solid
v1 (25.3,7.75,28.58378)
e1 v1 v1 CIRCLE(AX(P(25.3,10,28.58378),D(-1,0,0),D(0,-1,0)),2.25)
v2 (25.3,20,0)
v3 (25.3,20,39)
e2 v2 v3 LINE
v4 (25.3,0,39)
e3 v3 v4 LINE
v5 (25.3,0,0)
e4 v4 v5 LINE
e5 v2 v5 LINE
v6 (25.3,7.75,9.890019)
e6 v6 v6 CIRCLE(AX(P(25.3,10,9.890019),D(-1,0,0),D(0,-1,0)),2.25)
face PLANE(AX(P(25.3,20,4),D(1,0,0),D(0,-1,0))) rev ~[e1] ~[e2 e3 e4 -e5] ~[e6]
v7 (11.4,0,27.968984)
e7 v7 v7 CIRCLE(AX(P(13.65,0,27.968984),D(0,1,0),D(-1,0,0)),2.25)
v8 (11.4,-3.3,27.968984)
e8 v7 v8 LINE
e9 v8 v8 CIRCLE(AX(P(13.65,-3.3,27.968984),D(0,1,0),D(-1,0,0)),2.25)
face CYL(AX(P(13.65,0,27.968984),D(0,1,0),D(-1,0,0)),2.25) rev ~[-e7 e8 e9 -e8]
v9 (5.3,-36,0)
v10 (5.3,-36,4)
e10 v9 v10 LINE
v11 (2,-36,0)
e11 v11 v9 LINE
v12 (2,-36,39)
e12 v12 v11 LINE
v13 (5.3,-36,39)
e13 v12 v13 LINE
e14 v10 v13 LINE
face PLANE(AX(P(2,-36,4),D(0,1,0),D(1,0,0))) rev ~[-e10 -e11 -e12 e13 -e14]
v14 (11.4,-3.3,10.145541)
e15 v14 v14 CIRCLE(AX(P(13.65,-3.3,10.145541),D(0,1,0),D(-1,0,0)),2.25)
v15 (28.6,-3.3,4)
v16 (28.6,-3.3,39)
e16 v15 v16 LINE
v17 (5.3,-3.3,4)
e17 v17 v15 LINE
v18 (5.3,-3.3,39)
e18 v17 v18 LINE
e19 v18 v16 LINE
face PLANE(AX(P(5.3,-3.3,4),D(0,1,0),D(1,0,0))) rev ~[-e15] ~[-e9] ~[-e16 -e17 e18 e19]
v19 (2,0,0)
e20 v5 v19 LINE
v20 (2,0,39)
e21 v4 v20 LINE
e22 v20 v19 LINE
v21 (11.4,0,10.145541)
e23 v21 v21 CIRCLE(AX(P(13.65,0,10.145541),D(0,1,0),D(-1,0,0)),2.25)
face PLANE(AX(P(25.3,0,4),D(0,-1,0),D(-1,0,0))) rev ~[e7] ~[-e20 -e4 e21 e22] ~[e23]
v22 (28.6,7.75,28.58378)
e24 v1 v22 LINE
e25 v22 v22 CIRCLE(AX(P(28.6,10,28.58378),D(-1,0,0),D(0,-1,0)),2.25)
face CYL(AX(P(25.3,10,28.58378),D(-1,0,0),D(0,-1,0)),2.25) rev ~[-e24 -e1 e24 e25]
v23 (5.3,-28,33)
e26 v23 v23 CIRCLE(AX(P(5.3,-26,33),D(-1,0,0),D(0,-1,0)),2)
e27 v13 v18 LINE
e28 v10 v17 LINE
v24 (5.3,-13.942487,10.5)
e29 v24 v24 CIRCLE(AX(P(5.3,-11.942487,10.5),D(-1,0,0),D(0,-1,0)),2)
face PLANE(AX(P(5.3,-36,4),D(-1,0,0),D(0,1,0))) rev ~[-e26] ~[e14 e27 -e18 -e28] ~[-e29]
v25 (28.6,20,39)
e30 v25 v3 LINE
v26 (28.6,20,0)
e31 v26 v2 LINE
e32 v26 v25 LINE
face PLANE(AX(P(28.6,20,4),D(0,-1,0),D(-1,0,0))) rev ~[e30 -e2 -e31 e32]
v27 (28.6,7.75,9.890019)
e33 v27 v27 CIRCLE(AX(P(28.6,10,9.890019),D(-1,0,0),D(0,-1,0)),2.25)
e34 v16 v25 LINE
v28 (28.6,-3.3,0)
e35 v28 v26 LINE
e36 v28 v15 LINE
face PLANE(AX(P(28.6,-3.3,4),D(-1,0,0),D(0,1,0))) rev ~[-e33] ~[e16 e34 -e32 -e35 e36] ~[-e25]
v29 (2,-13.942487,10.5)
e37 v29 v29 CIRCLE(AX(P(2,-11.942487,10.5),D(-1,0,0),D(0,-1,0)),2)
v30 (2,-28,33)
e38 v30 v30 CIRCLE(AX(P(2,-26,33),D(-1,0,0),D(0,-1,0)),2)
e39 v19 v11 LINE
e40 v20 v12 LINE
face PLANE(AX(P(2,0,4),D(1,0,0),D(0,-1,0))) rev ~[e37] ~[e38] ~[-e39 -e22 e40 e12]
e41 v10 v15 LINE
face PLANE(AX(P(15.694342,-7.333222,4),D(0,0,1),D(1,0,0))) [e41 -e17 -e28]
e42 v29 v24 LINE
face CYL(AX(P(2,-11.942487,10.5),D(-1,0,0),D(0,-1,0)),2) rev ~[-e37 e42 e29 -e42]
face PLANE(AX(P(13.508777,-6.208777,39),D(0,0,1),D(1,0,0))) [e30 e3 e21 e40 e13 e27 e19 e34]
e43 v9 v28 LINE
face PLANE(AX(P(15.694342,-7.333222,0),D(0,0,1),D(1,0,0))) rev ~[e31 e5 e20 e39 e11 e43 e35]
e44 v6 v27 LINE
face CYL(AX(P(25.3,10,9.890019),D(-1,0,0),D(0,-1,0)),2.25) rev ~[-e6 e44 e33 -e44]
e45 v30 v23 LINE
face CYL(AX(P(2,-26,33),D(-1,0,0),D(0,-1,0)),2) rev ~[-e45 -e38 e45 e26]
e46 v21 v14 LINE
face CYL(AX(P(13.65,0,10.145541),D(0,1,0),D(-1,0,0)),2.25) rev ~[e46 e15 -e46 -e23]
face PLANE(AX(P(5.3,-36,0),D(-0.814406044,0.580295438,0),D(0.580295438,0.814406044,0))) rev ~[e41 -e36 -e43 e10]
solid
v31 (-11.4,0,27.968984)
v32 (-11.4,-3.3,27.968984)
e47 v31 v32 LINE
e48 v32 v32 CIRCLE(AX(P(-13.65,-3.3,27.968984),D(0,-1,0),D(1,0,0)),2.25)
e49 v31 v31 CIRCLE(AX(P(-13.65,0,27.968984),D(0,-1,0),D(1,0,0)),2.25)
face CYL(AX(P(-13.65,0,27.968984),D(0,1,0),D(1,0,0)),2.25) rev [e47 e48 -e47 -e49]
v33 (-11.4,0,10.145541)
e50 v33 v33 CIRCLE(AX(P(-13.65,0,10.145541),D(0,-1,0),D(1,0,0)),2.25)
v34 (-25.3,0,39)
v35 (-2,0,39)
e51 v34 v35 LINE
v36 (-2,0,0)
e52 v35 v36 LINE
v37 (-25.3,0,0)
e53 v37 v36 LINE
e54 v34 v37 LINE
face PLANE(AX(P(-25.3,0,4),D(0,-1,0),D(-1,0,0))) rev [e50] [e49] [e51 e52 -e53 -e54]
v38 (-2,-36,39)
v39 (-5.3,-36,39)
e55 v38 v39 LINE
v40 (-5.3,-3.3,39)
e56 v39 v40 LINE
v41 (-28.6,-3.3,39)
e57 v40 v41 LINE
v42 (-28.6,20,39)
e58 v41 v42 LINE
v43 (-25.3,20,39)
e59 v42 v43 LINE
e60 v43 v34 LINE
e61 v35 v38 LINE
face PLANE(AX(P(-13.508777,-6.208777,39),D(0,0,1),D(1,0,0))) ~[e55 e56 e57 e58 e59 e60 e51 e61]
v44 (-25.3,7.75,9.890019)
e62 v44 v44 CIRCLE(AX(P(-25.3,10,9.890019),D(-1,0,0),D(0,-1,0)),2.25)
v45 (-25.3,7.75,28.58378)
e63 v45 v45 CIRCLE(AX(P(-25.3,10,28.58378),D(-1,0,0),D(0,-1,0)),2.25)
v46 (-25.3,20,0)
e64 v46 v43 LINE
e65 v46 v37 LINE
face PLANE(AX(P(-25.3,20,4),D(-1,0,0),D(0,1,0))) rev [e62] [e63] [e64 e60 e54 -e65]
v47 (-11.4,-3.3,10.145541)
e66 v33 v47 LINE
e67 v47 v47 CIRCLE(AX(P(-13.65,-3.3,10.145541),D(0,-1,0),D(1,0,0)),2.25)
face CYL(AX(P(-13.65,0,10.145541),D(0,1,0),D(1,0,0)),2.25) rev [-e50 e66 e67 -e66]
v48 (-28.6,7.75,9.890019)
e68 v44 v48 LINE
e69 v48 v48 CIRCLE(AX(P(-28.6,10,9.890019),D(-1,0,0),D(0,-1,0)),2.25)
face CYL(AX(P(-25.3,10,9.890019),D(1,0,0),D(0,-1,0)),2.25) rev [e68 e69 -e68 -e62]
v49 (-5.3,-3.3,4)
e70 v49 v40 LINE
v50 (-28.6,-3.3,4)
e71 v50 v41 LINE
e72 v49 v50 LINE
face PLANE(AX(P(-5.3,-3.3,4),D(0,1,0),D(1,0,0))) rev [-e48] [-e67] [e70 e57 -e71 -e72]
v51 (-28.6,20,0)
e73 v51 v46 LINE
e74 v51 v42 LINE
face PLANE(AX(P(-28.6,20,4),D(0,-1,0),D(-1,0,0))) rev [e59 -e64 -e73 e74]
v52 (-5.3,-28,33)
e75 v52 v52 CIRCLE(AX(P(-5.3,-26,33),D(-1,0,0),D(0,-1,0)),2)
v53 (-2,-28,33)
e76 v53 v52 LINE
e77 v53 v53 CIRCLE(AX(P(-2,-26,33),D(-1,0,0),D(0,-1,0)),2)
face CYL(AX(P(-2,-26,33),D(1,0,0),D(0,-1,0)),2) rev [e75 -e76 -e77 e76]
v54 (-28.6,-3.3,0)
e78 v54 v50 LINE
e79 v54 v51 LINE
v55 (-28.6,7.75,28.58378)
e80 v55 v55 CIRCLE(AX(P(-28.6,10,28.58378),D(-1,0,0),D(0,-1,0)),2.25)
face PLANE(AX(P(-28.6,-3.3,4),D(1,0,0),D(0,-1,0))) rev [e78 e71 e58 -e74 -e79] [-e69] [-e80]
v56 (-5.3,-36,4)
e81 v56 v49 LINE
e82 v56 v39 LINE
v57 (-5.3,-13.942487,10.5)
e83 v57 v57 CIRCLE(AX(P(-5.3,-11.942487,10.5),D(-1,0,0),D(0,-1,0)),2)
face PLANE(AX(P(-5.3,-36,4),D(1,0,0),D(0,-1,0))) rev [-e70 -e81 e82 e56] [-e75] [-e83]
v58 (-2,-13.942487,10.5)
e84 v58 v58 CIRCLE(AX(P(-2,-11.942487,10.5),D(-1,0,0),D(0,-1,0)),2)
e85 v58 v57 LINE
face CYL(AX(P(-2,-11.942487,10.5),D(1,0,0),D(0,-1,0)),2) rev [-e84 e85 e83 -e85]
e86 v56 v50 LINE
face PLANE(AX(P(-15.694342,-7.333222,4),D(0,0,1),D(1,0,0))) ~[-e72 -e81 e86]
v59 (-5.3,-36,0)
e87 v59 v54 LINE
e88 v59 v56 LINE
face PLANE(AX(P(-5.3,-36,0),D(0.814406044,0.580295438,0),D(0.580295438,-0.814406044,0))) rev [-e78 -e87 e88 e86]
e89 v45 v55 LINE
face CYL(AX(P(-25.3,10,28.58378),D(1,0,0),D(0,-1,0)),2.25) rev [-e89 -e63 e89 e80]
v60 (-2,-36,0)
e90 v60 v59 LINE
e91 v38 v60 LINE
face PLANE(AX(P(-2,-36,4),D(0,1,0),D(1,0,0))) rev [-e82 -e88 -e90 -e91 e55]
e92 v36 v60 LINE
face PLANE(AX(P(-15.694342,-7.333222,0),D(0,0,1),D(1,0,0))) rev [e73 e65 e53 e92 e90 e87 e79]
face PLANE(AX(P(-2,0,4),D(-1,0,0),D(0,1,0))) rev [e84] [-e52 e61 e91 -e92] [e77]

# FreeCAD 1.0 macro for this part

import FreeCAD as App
import Part
import Sketcher
Q = App.Units.Quantity

doc = App.newDocument("Part")
body = doc.addObject("PartDesign::Body", "Body")

sketch1 = body.newObject("Sketcher::SketchObject", "Sketch")
sketch1.AttachmentSupport = (doc.getObject("XY_Plane"), [""])
sketch1.MapMode = "FlatFace"
sketch1.addGeometry([
    Part.LineSegment(App.Vector(2, -36, 0), App.Vector(5.3, -36, 0)),
    Part.LineSegment(App.Vector(5.3, -36, 0), App.Vector(28.6, -3.3, 0)),
    Part.LineSegment(App.Vector(28.6, -3.3, 0), App.Vector(28.6, 20, 0)),
    Part.LineSegment(App.Vector(28.6, 20, 0), App.Vector(25.3, 20, 0)),
    Part.LineSegment(App.Vector(25.3, 20, 0), App.Vector(25.3, 0, 0)),
    Part.LineSegment(App.Vector(25.3, 0, 0), App.Vector(2, 0, 0)),
    Part.LineSegment(App.Vector(2, 0, 0), App.Vector(2, -36, 0)),
], False)
sketch1.addConstraint([
    Sketcher.Constraint("Coincident", 0, 2, 1, 1),
    Sketcher.Constraint("Coincident", 1, 2, 2, 1),
    Sketcher.Constraint("Coincident", 2, 2, 3, 1),
    Sketcher.Constraint("Coincident", 3, 2, 4, 1),
    Sketcher.Constraint("Coincident", 4, 2, 5, 1),
    Sketcher.Constraint("Coincident", 5, 2, 6, 1),
    Sketcher.Constraint("Coincident", 6, 2, 0, 1),
    Sketcher.Constraint("Horizontal", 0),
    Sketcher.Constraint("Vertical", 2),
    Sketcher.Constraint("Horizontal", 3),
    Sketcher.Constraint("Vertical", 4),
    Sketcher.Constraint("Horizontal", 5),
    Sketcher.Constraint("Vertical", 6),
    Sketcher.Constraint("PointOnObject", 4, 2, -1),
    Sketcher.Constraint("Equal", 0, 3),
    Sketcher.Constraint("Equal", 5, 2),
    Sketcher.Constraint("DistanceY", 4, 2, 4, 1, Q("20 mm")),
    Sketcher.Constraint("DistanceY", 6, 2, 6, 1, Q("36 mm")),
    Sketcher.Constraint("DistanceX", 0, 1, 0, 2, Q("3.3 mm")),
    Sketcher.Constraint("DistanceX", 5, 2, 5, 1, Q("23.3 mm")),
    Sketcher.Constraint("DistanceX", -1, 1, 5, 2, Q("2 mm")),
])
pad1 = body.newObject("PartDesign::Pad", "Pad")
pad1.Profile = sketch1
pad1.Length = 4

sketch2 = body.newObject("Sketcher::SketchObject", "Sketch001")
sketch2.AttachmentSupport = (doc.getObject("XY_Plane"), [""])
sketch2.MapMode = "FlatFace"
sketch2.AttachmentOffset = App.Placement(App.Vector(0, 0, 4), App.Rotation())
sketch2.addGeometry([
    Part.LineSegment(App.Vector(2, -36, 0), App.Vector(5.3, -36, 0)),
    Part.LineSegment(App.Vector(5.3, -36, 0), App.Vector(5.3, -3.3, 0)),
    Part.LineSegment(App.Vector(5.3, -3.3, 0), App.Vector(28.6, -3.3, 0)),
    Part.LineSegment(App.Vector(28.6, -3.3, 0), App.Vector(28.6, 20, 0)),
    Part.LineSegment(App.Vector(28.6, 20, 0), App.Vector(25.3, 20, 0)),
    Part.LineSegment(App.Vector(25.3, 20, 0), App.Vector(25.3, 0, 0)),
    Part.LineSegment(App.Vector(25.3, 0, 0), App.Vector(2, 0, 0)),
    Part.LineSegment(App.Vector(2, 0, 0), App.Vector(2, -36, 0)),
], False)
sketch2.addConstraint([
    Sketcher.Constraint("Coincident", 0, 2, 1, 1),
    Sketcher.Constraint("Coincident", 1, 2, 2, 1),
    Sketcher.Constraint("Coincident", 2, 2, 3, 1),
    Sketcher.Constraint("Coincident", 3, 2, 4, 1),
    Sketcher.Constraint("Coincident", 4, 2, 5, 1),
    Sketcher.Constraint("Coincident", 5, 2, 6, 1),
    Sketcher.Constraint("Coincident", 6, 2, 7, 1),
    Sketcher.Constraint("Coincident", 7, 2, 0, 1),
    Sketcher.Constraint("Horizontal", 0),
    Sketcher.Constraint("Vertical", 1),
    Sketcher.Constraint("Horizontal", 2),
    Sketcher.Constraint("Vertical", 3),
    Sketcher.Constraint("Horizontal", 4),
    Sketcher.Constraint("Vertical", 5),
    Sketcher.Constraint("Horizontal", 6),
    Sketcher.Constraint("Vertical", 7),
    Sketcher.Constraint("PointOnObject", 5, 2, -1),
    Sketcher.Constraint("Equal", 0, 4),
    Sketcher.Constraint("Equal", 6, 3),
    Sketcher.Constraint("DistanceY", 5, 2, 5, 1, Q("20 mm")),
    Sketcher.Constraint("DistanceY", 7, 2, 7, 1, Q("36 mm")),
    Sketcher.Constraint("DistanceX", 0, 1, 0, 2, Q("3.3 mm")),
    Sketcher.Constraint("DistanceX", 2, 1, 2, 2, Q("23.3 mm")),
    Sketcher.Constraint("DistanceX", -1, 1, 6, 2, Q("2 mm")),
])
pad2 = body.newObject("PartDesign::Pad", "Pad001")
pad2.Profile = sketch2
pad2.Length = 35

sketch3 = body.newObject("Sketcher::SketchObject", "Sketch002")
sketch3.AttachmentSupport = (doc.getObject("YZ_Plane"), [""])
sketch3.MapMode = "FlatFace"
sketch3.AttachmentOffset = App.Placement(App.Vector(0, 0, 25.3), App.Rotation())
sketch3.addGeometry([
    Part.Circle(App.Vector(10, 28.6, 0), App.Vector(0, 0, 1), 2.2),
    Part.Circle(App.Vector(10, 9.9, 0), App.Vector(0, 0, 1), 2.2),
], False)
sketch3.addConstraint([
    Sketcher.Constraint("Equal", 0, 1),
    Sketcher.Constraint("Vertical", 0, 3, 1, 3),
    Sketcher.Constraint("Diameter", 0, Q("4.5 mm")),
    Sketcher.Constraint("DistanceX", -1, 1, 0, 3, Q("10 mm")),
    Sketcher.Constraint("DistanceY", -1, 1, 0, 3, Q("28.58378 mm")),
    Sketcher.Constraint("DistanceY", -1, 1, 1, 3, Q("9.890019 mm")),
])
pocket1 = body.newObject("PartDesign::Pocket", "Pocket")
pocket1.Profile = sketch3
pocket1.Type = "ThroughAll"
pocket1.Reversed = True

sketch4 = body.newObject("Sketcher::SketchObject", "Sketch003")
sketch4.AttachmentSupport = (doc.getObject("YZ_Plane"), [""])
sketch4.MapMode = "FlatFace"
sketch4.AttachmentOffset = App.Placement(App.Vector(0, 0, 2), App.Rotation())
sketch4.addGeometry([
    Part.Circle(App.Vector(-26, 33, 0), App.Vector(0, 0, 1), 2),
    Part.Circle(App.Vector(-11.9, 10.5, 0), App.Vector(0, 0, 1), 2),
], False)
sketch4.addConstraint([
    Sketcher.Constraint("Equal", 0, 1),
    Sketcher.Constraint("Diameter", 0, Q("4 mm")),
    Sketcher.Constraint("DistanceX", 0, 3, -1, 1, Q("26 mm")),
    Sketcher.Constraint("DistanceY", -1, 1, 0, 3, Q("33 mm")),
    Sketcher.Constraint("DistanceY", -1, 1, 1, 3, Q("10.5 mm")),
    Sketcher.Constraint("DistanceX", 1, 3, -1, 1, Q("11.942487 mm")),
])
pocket2 = body.newObject("PartDesign::Pocket", "Pocket001")
pocket2.Profile = sketch4
pocket2.Type = "ThroughAll"
pocket2.Reversed = True

sketch5 = body.newObject("Sketcher::SketchObject", "Sketch004")
sketch5.AttachmentSupport = (doc.getObject("XZ_Plane"), [""])
sketch5.MapMode = "FlatFace"
sketch5.addGeometry([
    Part.Circle(App.Vector(13.7, 28, 0), App.Vector(0, 0, 1), 2.2),
    Part.Circle(App.Vector(13.7, 10.1, 0), App.Vector(0, 0, 1), 2.2),
], False)
sketch5.addConstraint([
    Sketcher.Constraint("Equal", 0, 1),
    Sketcher.Constraint("Vertical", 0, 3, 1, 3),
    Sketcher.Constraint("Diameter", 0, Q("4.5 mm")),
    Sketcher.Constraint("DistanceX", -1, 1, 0, 3, Q("13.65 mm")),
    Sketcher.Constraint("DistanceY", -1, 1, 1, 3, Q("10.145541 mm")),
    Sketcher.Constraint("DistanceY", -1, 1, 0, 3, Q("27.968984 mm")),
])
pocket3 = body.newObject("PartDesign::Pocket", "Pocket002")
pocket3.Profile = sketch5
pocket3.Type = "ThroughAll"
pocket3.Reversed = True
body2 = doc.addObject("PartDesign::Body", "Body001")
doc.recompute()

mirroring = doc.addObject("Part::Mirroring", "Mirroring")
mirroring.Source = body
mirroring.Base = App.Vector(0, 0, 0)
mirroring.Normal = App.Vector(1, 0, 0)
body2.BaseFeature = mirroring
doc.recompute()
mirroring.Visibility = False

doc.recompute()
